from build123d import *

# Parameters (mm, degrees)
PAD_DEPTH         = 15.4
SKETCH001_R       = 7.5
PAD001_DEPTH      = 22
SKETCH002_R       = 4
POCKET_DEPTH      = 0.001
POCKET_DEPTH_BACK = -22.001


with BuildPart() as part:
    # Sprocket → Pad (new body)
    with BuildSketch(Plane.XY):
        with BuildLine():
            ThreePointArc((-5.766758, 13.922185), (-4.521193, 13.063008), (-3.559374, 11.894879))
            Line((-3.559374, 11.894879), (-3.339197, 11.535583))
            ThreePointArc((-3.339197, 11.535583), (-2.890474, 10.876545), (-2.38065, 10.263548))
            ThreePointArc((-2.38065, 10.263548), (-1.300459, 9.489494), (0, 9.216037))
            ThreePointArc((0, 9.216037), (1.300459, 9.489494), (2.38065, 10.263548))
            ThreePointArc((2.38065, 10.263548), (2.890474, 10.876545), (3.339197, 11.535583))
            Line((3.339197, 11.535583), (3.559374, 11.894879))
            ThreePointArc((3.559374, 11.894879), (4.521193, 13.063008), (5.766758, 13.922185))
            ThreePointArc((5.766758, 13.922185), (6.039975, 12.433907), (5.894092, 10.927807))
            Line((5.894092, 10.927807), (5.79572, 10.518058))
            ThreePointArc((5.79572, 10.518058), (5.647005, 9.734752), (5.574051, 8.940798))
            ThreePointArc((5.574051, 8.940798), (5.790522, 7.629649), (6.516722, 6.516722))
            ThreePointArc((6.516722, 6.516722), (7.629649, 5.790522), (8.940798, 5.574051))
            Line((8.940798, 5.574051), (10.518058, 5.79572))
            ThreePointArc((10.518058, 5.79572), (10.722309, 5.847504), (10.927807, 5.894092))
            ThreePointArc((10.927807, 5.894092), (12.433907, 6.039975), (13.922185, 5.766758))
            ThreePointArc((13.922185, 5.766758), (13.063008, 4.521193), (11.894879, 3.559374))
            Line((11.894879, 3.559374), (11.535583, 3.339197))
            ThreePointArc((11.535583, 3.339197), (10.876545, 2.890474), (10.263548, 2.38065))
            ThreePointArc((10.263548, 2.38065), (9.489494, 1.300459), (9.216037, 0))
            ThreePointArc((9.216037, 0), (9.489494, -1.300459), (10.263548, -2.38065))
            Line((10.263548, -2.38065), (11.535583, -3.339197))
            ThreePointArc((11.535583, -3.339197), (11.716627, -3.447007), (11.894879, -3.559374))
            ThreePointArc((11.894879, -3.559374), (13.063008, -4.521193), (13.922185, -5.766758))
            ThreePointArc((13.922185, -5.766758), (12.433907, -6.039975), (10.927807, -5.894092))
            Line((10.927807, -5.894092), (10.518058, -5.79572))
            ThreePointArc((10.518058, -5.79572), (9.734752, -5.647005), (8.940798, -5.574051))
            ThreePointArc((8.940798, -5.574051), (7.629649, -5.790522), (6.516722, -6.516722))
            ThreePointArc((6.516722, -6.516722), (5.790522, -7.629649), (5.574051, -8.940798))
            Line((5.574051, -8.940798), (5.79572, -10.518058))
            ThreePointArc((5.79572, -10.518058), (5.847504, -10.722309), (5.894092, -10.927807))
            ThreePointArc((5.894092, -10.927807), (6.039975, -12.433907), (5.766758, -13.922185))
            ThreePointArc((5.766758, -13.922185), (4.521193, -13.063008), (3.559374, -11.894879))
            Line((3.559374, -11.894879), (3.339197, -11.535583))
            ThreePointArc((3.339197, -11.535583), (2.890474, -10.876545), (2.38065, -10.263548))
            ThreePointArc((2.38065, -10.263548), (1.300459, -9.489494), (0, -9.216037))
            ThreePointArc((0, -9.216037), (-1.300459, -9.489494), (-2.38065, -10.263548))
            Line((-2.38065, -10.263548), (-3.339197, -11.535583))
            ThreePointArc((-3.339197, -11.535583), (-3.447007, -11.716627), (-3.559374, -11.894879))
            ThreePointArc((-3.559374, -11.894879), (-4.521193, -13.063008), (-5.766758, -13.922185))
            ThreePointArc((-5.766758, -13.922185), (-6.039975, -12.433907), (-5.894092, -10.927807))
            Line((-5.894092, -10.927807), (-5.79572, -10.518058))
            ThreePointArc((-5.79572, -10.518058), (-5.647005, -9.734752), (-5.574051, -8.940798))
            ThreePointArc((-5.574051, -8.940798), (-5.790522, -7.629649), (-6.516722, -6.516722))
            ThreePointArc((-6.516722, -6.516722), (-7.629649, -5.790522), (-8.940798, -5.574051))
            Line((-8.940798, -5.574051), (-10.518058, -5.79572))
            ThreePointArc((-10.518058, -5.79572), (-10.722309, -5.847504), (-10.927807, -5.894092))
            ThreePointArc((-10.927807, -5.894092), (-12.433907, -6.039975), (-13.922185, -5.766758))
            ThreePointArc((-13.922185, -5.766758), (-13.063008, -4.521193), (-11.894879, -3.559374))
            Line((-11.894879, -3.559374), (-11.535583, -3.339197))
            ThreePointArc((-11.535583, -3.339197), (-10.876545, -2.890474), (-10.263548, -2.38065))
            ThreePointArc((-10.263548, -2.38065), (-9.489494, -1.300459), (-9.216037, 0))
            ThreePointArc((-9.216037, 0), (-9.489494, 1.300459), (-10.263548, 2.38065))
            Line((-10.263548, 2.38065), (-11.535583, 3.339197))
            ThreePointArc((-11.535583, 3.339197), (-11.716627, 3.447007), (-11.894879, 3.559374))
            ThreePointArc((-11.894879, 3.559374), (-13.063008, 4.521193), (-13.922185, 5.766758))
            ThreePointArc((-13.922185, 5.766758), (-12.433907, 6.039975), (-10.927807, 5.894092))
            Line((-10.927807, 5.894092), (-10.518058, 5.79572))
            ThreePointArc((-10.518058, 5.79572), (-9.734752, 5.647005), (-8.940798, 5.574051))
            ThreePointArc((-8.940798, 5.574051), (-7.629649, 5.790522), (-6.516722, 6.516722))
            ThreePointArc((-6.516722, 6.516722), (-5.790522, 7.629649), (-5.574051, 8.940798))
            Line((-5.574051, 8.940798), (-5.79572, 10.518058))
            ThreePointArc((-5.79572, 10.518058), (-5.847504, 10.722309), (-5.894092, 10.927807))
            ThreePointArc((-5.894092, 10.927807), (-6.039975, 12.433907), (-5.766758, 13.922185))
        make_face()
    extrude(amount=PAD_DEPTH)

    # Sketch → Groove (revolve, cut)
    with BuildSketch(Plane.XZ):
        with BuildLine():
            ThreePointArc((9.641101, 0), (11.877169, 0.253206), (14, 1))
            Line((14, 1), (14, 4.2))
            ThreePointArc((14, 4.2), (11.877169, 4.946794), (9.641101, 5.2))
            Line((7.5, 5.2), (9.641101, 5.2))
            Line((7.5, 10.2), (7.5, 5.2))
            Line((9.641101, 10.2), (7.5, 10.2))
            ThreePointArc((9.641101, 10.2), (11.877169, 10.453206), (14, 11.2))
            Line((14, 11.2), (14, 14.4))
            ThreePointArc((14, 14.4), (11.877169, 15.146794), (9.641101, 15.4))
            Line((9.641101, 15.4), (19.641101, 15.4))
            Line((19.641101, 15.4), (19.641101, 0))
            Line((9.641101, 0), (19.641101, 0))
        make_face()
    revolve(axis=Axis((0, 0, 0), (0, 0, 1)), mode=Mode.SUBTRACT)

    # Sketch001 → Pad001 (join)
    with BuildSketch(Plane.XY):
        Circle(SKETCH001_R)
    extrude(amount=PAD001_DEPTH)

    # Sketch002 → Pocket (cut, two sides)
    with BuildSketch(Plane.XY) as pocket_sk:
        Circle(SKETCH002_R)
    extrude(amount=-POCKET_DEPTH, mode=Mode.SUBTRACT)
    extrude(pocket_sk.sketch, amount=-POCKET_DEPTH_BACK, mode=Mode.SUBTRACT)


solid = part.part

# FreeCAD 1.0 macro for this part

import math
import FreeCAD as App
import Part
import Sketcher
from FreeCAD import Vector
Q = App.Units.Quantity

doc = App.newDocument("Part")
body = doc.addObject("PartDesign::Body", "Body")

# Sketch on XY plane
sketch1 = body.newObject("Sketcher::SketchObject", "Sketch")
sketch1.AttachmentSupport = (doc.getObject("XY_Plane"), [""])
sketch1.MapMode = "FlatFace"
sketch1.addGeometry(Part.ArcOfCircle(Part.Circle(Vector(-8.213287, 9.042958, 0), Vector(0, 0, 1), 5.458237), math.radians(31.499993), math.radians(63.37002)), False)
sketch1.addGeometry(Part.ArcOfCircle(Part.Circle(Vector(-0.586656, 12.202008, 0), Vector(0, 0, 1), 5.458248), math.radians(161.630018), math.radians(193.499983)), False)
sketch1.addGeometry(Part.ArcOfCircle(Part.Circle(Vector(2.232006, 12.662027, 0), Vector(0, 0, 1), 8.309091), math.radians(-167.953026), math.radians(-165.046983)), False)
sketch1.addGeometry(Part.LineSegment(Vector(-5.79572, 10.518058, 0), Vector(-5.574051, 8.940798, 0)), False)
sketch1.addGeometry(Part.ArcOfCircle(Part.Circle(Vector(-8.79995, 8.79995, 0), Vector(0, 0, 1), 3.228972), math.radians(-45.000007), math.radians(2.500031)), False)
sketch1.addGeometry(Part.ArcOfCircle(Part.Circle(Vector(-8.79995, 8.79995, 0), Vector(0, 0, 1), 3.228972), math.radians(-92.500031), math.radians(-44.999993)), False)
sketch1.addGeometry(Part.ArcOfCircle(Part.Circle(Vector(-8.578365, 13.875139, 0), Vector(0, 0, 1), 8.308996), math.radians(-103.499973), math.radians(-92.499996)), False)
sketch1.addGeometry(Part.LineSegment(Vector(-10.518058, 5.79572, 0), Vector(-10.927807, 5.894092, 0)), False)
sketch1.addGeometry(Part.ArcOfCircle(Part.Circle(Vector(-12.202008, 0.586656, 0), Vector(0, 0, 1), 5.458248), math.radians(76.500017), math.radians(108.369982)), False)
sketch1.addGeometry(Part.ArcOfCircle(Part.Circle(Vector(-9.042958, 8.213287, 0), Vector(0, 0, 1), 5.458237), math.radians(-153.37002), math.radians(-121.499993)), False)
sketch1.addGeometry(Part.ArcOfCircle(Part.Circle(Vector(-7.375746, 10.530677, 0), Vector(0, 0, 1), 8.307925), math.radians(-122.953241), math.radians(-120.046788)), False)
sketch1.addGeometry(Part.LineSegment(Vector(-11.535583, 3.339197, 0), Vector(-10.263548, 2.38065, 0)), False)
sketch1.addGeometry(Part.ArcOfCircle(Part.Circle(Vector(-12.445011, 0.000001, 0), Vector(0, 0, 1), 3.228974), math.radians(-0.000009), math.radians(47.500006)), False)
sketch1.addGeometry(Part.ArcOfCircle(Part.Circle(Vector(-12.445011, -0.000001, 0), Vector(0, 0, 1), 3.228974), math.radians(-47.500006), math.radians(0.000009)), False)
sketch1.addGeometry(Part.ArcOfCircle(Part.Circle(Vector(-15.877022, 3.745386, 0), Vector(0, 0, 1), 8.308995), math.radians(-58.499991), math.radians(-47.500016)), False)
sketch1.addGeometry(Part.LineSegment(Vector(-11.535583, -3.339197, 0), Vector(-11.894879, -3.559374, 0)), False)
sketch1.addGeometry(Part.ArcOfCircle(Part.Circle(Vector(-9.042958, -8.213287, 0), Vector(0, 0, 1), 5.458237), math.radians(121.499993), math.radians(153.37002)), False)
sketch1.addGeometry(Part.ArcOfCircle(Part.Circle(Vector(-12.202008, -0.586656, 0), Vector(0, 0, 1), 5.458248), math.radians(-108.369982), math.radians(-76.500017)), False)
sketch1.addGeometry(Part.ArcOfCircle(Part.Circle(Vector(-12.662027, 2.232006, 0), Vector(0, 0, 1), 8.309091), math.radians(-77.953026), math.radians(-75.046983)), False)
sketch1.addGeometry(Part.LineSegment(Vector(-10.518058, -5.79572, 0), Vector(-8.940798, -5.574051, 0)), False)
sketch1.addGeometry(Part.ArcOfCircle(Part.Circle(Vector(-8.79995, -8.79995, 0), Vector(0, 0, 1), 3.228972), math.radians(44.999993), math.radians(92.500031)), False)
sketch1.addGeometry(Part.ArcOfCircle(Part.Circle(Vector(-8.79995, -8.79995, 0), Vector(0, 0, 1), 3.228972), math.radians(-2.500031), math.radians(45.000007)), False)
sketch1.addGeometry(Part.ArcOfCircle(Part.Circle(Vector(-13.875139, -8.578365, 0), Vector(0, 0, 1), 8.308996), math.radians(-13.499973), math.radians(-2.499996)), False)
sketch1.addGeometry(Part.LineSegment(Vector(-5.79572, -10.518058, 0), Vector(-5.894092, -10.927807, 0)), False)
sketch1.addGeometry(Part.ArcOfCircle(Part.Circle(Vector(-0.586656, -12.202008, 0), Vector(0, 0, 1), 5.458248), math.radians(166.500017), math.radians(198.369982)), False)
sketch1.addGeometry(Part.ArcOfCircle(Part.Circle(Vector(-8.213287, -9.042958, 0), Vector(0, 0, 1), 5.458237), math.radians(-63.37002), math.radians(-31.499993)), False)
sketch1.addGeometry(Part.ArcOfCircle(Part.Circle(Vector(-10.530677, -7.375746, 0), Vector(0, 0, 1), 8.307925), math.radians(-32.953241), math.radians(-30.046788)), False)
sketch1.addGeometry(Part.LineSegment(Vector(-3.339197, -11.535583, 0), Vector(-2.38065, -10.263548, 0)), False)
sketch1.addGeometry(Part.ArcOfCircle(Part.Circle(Vector(-0.000001, -12.445011, 0), Vector(0, 0, 1), 3.228974), math.radians(89.999991), math.radians(137.500006)), False)
sketch1.addGeometry(Part.ArcOfCircle(Part.Circle(Vector(0.000001, -12.445011, 0), Vector(0, 0, 1), 3.228974), math.radians(42.499994), math.radians(90.000009)), False)
sketch1.addGeometry(Part.ArcOfCircle(Part.Circle(Vector(-3.745386, -15.877022, 0), Vector(0, 0, 1), 8.308995), math.radians(31.500009), math.radians(42.499984)), False)
sketch1.addGeometry(Part.LineSegment(Vector(3.339197, -11.535583, 0), Vector(3.559374, -11.894879, 0)), False)
sketch1.addGeometry(Part.ArcOfCircle(Part.Circle(Vector(8.213287, -9.042958, 0), Vector(0, 0, 1), 5.458237), math.radians(-148.500007), math.radians(-116.62998)), False)
sketch1.addGeometry(Part.ArcOfCircle(Part.Circle(Vector(0.586656, -12.202008, 0), Vector(0, 0, 1), 5.458248), math.radians(-18.369982), math.radians(13.499983)), False)
sketch1.addGeometry(Part.ArcOfCircle(Part.Circle(Vector(-2.232006, -12.662027, 0), Vector(0, 0, 1), 8.309091), math.radians(12.046974), math.radians(14.953017)), False)
sketch1.addGeometry(Part.LineSegment(Vector(5.79572, -10.518058, 0), Vector(5.574051, -8.940798, 0)), False)
sketch1.addGeometry(Part.ArcOfCircle(Part.Circle(Vector(8.79995, -8.79995, 0), Vector(0, 0, 1), 3.228972), math.radians(134.999993), math.radians(182.500031)), False)
sketch1.addGeometry(Part.ArcOfCircle(Part.Circle(Vector(8.79995, -8.79995, 0), Vector(0, 0, 1), 3.228972), math.radians(87.499969), math.radians(135.000007)), False)
sketch1.addGeometry(Part.ArcOfCircle(Part.Circle(Vector(8.578365, -13.875139, 0), Vector(0, 0, 1), 8.308996), math.radians(76.500027), math.radians(87.500004)), False)
sketch1.addGeometry(Part.LineSegment(Vector(10.518058, -5.79572, 0), Vector(10.927807, -5.894092, 0)), False)
sketch1.addGeometry(Part.ArcOfCircle(Part.Circle(Vector(12.202008, -0.586656, 0), Vector(0, 0, 1), 5.458248), math.radians(-103.499983), math.radians(-71.630018)), False)
sketch1.addGeometry(Part.ArcOfCircle(Part.Circle(Vector(9.042958, -8.213287, 0), Vector(0, 0, 1), 5.458237), math.radians(26.62998), math.radians(58.500007)), False)
sketch1.addGeometry(Part.ArcOfCircle(Part.Circle(Vector(7.375746, -10.530677, 0), Vector(0, 0, 1), 8.307925), math.radians(57.046759), math.radians(59.953212)), False)
sketch1.addGeometry(Part.LineSegment(Vector(11.535583, -3.339197, 0), Vector(10.263548, -2.38065, 0)), False)
sketch1.addGeometry(Part.ArcOfCircle(Part.Circle(Vector(12.445011, -0.000001, 0), Vector(0, 0, 1), 3.228974), math.radians(179.999991), math.radians(227.500006)), False)
sketch1.addGeometry(Part.ArcOfCircle(Part.Circle(Vector(12.445011, 0.000001, 0), Vector(0, 0, 1), 3.228974), math.radians(132.499994), math.radians(180.000009)), False)
sketch1.addGeometry(Part.ArcOfCircle(Part.Circle(Vector(15.877022, -3.745386, 0), Vector(0, 0, 1), 8.308995), math.radians(121.500009), math.radians(132.499984)), False)
sketch1.addGeometry(Part.LineSegment(Vector(11.535583, 3.339197, 0), Vector(11.894879, 3.559374, 0)), False)
sketch1.addGeometry(Part.ArcOfCircle(Part.Circle(Vector(9.042958, 8.213287, 0), Vector(0, 0, 1), 5.458237), math.radians(-58.500007), math.radians(-26.62998)), False)
sketch1.addGeometry(Part.ArcOfCircle(Part.Circle(Vector(12.202008, 0.586656, 0), Vector(0, 0, 1), 5.458248), math.radians(71.630018), math.radians(103.499983)), False)
sketch1.addGeometry(Part.ArcOfCircle(Part.Circle(Vector(12.662027, -2.232006, 0), Vector(0, 0, 1), 8.309091), math.radians(102.046974), math.radians(104.953017)), False)
sketch1.addGeometry(Part.LineSegment(Vector(10.518058, 5.79572, 0), Vector(8.940798, 5.574051, 0)), False)
sketch1.addGeometry(Part.ArcOfCircle(Part.Circle(Vector(8.79995, 8.79995, 0), Vector(0, 0, 1), 3.228972), math.radians(-135.000007), math.radians(-87.499969)), False)
sketch1.addGeometry(Part.ArcOfCircle(Part.Circle(Vector(8.79995, 8.79995, 0), Vector(0, 0, 1), 3.228972), math.radians(177.499969), math.radians(225.000007)), False)
sketch1.addGeometry(Part.ArcOfCircle(Part.Circle(Vector(13.875139, 8.578365, 0), Vector(0, 0, 1), 8.308996), math.radians(166.500027), math.radians(177.500004)), False)
sketch1.addGeometry(Part.LineSegment(Vector(5.79572, 10.518058, 0), Vector(5.894092, 10.927807, 0)), False)
sketch1.addGeometry(Part.ArcOfCircle(Part.Circle(Vector(0.586656, 12.202008, 0), Vector(0, 0, 1), 5.458248), math.radians(-13.499983), math.radians(18.369982)), False)
sketch1.addGeometry(Part.ArcOfCircle(Part.Circle(Vector(8.213287, 9.042958, 0), Vector(0, 0, 1), 5.458237), math.radians(116.62998), math.radians(148.500007)), False)
sketch1.addGeometry(Part.LineSegment(Vector(3.559374, 11.894879, 0), Vector(3.339197, 11.535583, 0)), False)
sketch1.addGeometry(Part.ArcOfCircle(Part.Circle(Vector(-3.745386, 15.877022, 0), Vector(0, 0, 1), 8.308995), math.radians(-42.499984), math.radians(-31.500009)), False)
sketch1.addGeometry(Part.ArcOfCircle(Part.Circle(Vector(0.000001, 12.445011, 0), Vector(0, 0, 1), 3.228974), math.radians(-90.000009), math.radians(-42.499994)), False)
sketch1.addGeometry(Part.ArcOfCircle(Part.Circle(Vector(-0.000001, 12.445011, 0), Vector(0, 0, 1), 3.228974), math.radians(-137.500006), math.radians(-89.999991)), False)
sketch1.addGeometry(Part.ArcOfCircle(Part.Circle(Vector(3.745386, 15.877022, 0), Vector(0, 0, 1), 8.308995), math.radians(-148.499991), math.radians(-137.500016)), False)
sketch1.addGeometry(Part.LineSegment(Vector(-3.339197, 11.535583, 0), Vector(-3.559374, 11.894879, 0)), False)
sketch1.addConstraint(Sketcher.Constraint("Coincident", 0, 2, 1, 1))
sketch1.addConstraint(Sketcher.Constraint("Coincident", 1, 2, 2, 1))
sketch1.addConstraint(Sketcher.Constraint("Coincident", 2, 2, 3, 1))
sketch1.addConstraint(Sketcher.Constraint("Coincident", 3, 2, 4, 2))
sketch1.addConstraint(Sketcher.Constraint("Tangent", 4, 1, 5, 2))
sketch1.addConstraint(Sketcher.Constraint("Tangent", 5, 1, 6, 2))
sketch1.addConstraint(Sketcher.Constraint("Tangent", 6, 1, 7, 1))
sketch1.addConstraint(Sketcher.Constraint("Tangent", 7, 2, 8, 1))
sketch1.addConstraint(Sketcher.Constraint("Coincident", 8, 2, 9, 1))
sketch1.addConstraint(Sketcher.Constraint("Coincident", 9, 2, 10, 1))
sketch1.addConstraint(Sketcher.Constraint("Coincident", 10, 2, 11, 1))
sketch1.addConstraint(Sketcher.Constraint("Coincident", 11, 2, 12, 2))
sketch1.addConstraint(Sketcher.Constraint("Tangent", 12, 1, 13, 2))
sketch1.addConstraint(Sketcher.Constraint("Tangent", 13, 1, 14, 2))
sketch1.addConstraint(Sketcher.Constraint("Tangent", 14, 1, 15, 1))
sketch1.addConstraint(Sketcher.Constraint("Tangent", 15, 2, 16, 1))
sketch1.addConstraint(Sketcher.Constraint("Coincident", 16, 2, 17, 1))
sketch1.addConstraint(Sketcher.Constraint("Coincident", 17, 2, 18, 1))
sketch1.addConstraint(Sketcher.Constraint("Coincident", 18, 2, 19, 1))
sketch1.addConstraint(Sketcher.Constraint("Coincident", 19, 2, 20, 2))
sketch1.addConstraint(Sketcher.Constraint("Tangent", 20, 1, 21, 2))
sketch1.addConstraint(Sketcher.Constraint("Tangent", 21, 1, 22, 2))
sketch1.addConstraint(Sketcher.Constraint("Tangent", 22, 1, 23, 1))
sketch1.addConstraint(Sketcher.Constraint("Tangent", 23, 2, 24, 1))
sketch1.addConstraint(Sketcher.Constraint("Coincident", 24, 2, 25, 1))
sketch1.addConstraint(Sketcher.Constraint("Coincident", 25, 2, 26, 1))
sketch1.addConstraint(Sketcher.Constraint("Coincident", 26, 2, 27, 1))
sketch1.addConstraint(Sketcher.Constraint("Coincident", 27, 2, 28, 2))
sketch1.addConstraint(Sketcher.Constraint("Tangent", 28, 1, 29, 2))
sketch1.addConstraint(Sketcher.Constraint("Tangent", 29, 1, 30, 2))
sketch1.addConstraint(Sketcher.Constraint("Tangent", 30, 1, 31, 1))
sketch1.addConstraint(Sketcher.Constraint("Tangent", 31, 2, 32, 1))
sketch1.addConstraint(Sketcher.Constraint("Coincident", 32, 2, 33, 1))
sketch1.addConstraint(Sketcher.Constraint("Coincident", 33, 2, 34, 1))
sketch1.addConstraint(Sketcher.Constraint("Coincident", 34, 2, 35, 1))
sketch1.addConstraint(Sketcher.Constraint("Coincident", 35, 2, 36, 2))
sketch1.addConstraint(Sketcher.Constraint("Tangent", 36, 1, 37, 2))
sketch1.addConstraint(Sketcher.Constraint("Tangent", 37, 1, 38, 2))
sketch1.addConstraint(Sketcher.Constraint("Tangent", 38, 1, 39, 1))
sketch1.addConstraint(Sketcher.Constraint("Tangent", 39, 2, 40, 1))
sketch1.addConstraint(Sketcher.Constraint("Coincident", 40, 2, 41, 1))
sketch1.addConstraint(Sketcher.Constraint("Coincident", 41, 2, 42, 1))
sketch1.addConstraint(Sketcher.Constraint("Coincident", 42, 2, 43, 1))
sketch1.addConstraint(Sketcher.Constraint("Coincident", 43, 2, 44, 2))
sketch1.addConstraint(Sketcher.Constraint("Tangent", 44, 1, 45, 2))
sketch1.addConstraint(Sketcher.Constraint("Tangent", 45, 1, 46, 2))
sketch1.addConstraint(Sketcher.Constraint("Tangent", 46, 1, 47, 1))
sketch1.addConstraint(Sketcher.Constraint("Tangent", 47, 2, 48, 1))
sketch1.addConstraint(Sketcher.Constraint("Coincident", 48, 2, 49, 1))
sketch1.addConstraint(Sketcher.Constraint("Coincident", 49, 2, 50, 1))
sketch1.addConstraint(Sketcher.Constraint("Coincident", 50, 2, 51, 1))
sketch1.addConstraint(Sketcher.Constraint("Coincident", 51, 2, 52, 2))
sketch1.addConstraint(Sketcher.Constraint("Tangent", 52, 1, 53, 2))
sketch1.addConstraint(Sketcher.Constraint("Tangent", 53, 1, 54, 2))
sketch1.addConstraint(Sketcher.Constraint("Tangent", 54, 1, 55, 1))
sketch1.addConstraint(Sketcher.Constraint("Tangent", 55, 2, 56, 1))
sketch1.addConstraint(Sketcher.Constraint("Coincident", 56, 2, 57, 1))
sketch1.addConstraint(Sketcher.Constraint("Tangent", 57, 2, 58, 1))
sketch1.addConstraint(Sketcher.Constraint("Tangent", 58, 2, 59, 2))
sketch1.addConstraint(Sketcher.Constraint("Tangent", 59, 1, 60, 2))
sketch1.addConstraint(Sketcher.Constraint("Tangent", 60, 1, 61, 2))
sketch1.addConstraint(Sketcher.Constraint("Tangent", 61, 1, 62, 2))
sketch1.addConstraint(Sketcher.Constraint("Tangent", 62, 1, 63, 1))
sketch1.addConstraint(Sketcher.Constraint("Tangent", 63, 2, 0, 1))
sketch1.addConstraint(Sketcher.Constraint("Equal", 4, 5))
sketch1.addConstraint(Sketcher.Constraint("Equal", 1, 8))
sketch1.addConstraint(Sketcher.Constraint("Equal", 0, 9))
sketch1.addConstraint(Sketcher.Constraint("Equal", 5, 12))
sketch1.addConstraint(Sketcher.Constraint("Equal", 12, 13))
sketch1.addConstraint(Sketcher.Constraint("Equal", 6, 14))
sketch1.addConstraint(Sketcher.Constraint("Equal", 9, 16))
sketch1.addConstraint(Sketcher.Constraint("Equal", 8, 17))
sketch1.addConstraint(Sketcher.Constraint("Equal", 2, 18))
sketch1.addConstraint(Sketcher.Constraint("Equal", 13, 20))
sketch1.addConstraint(Sketcher.Constraint("Equal", 20, 21))
sketch1.addConstraint(Sketcher.Constraint("Equal", 14, 22))
sketch1.addConstraint(Sketcher.Constraint("Equal", 17, 24))
sketch1.addConstraint(Sketcher.Constraint("Equal", 16, 25))
sketch1.addConstraint(Sketcher.Constraint("Equal", 10, 26))
sketch1.addConstraint(Sketcher.Constraint("Equal", 21, 28))
sketch1.addConstraint(Sketcher.Constraint("Equal", 28, 29))
sketch1.addConstraint(Sketcher.Constraint("Equal", 22, 30))
sketch1.addConstraint(Sketcher.Constraint("Equal", 25, 32))
sketch1.addConstraint(Sketcher.Constraint("Equal", 24, 33))
sketch1.addConstraint(Sketcher.Constraint("Equal", 18, 34))
sketch1.addConstraint(Sketcher.Constraint("Equal", 29, 36))
sketch1.addConstraint(Sketcher.Constraint("Equal", 36, 37))
sketch1.addConstraint(Sketcher.Constraint("Equal", 30, 38))
sketch1.addConstraint(Sketcher.Constraint("Equal", 33, 40))
sketch1.addConstraint(Sketcher.Constraint("Equal", 32, 41))
sketch1.addConstraint(Sketcher.Constraint("Equal", 26, 42))
sketch1.addConstraint(Sketcher.Constraint("Equal", 37, 44))
sketch1.addConstraint(Sketcher.Constraint("Equal", 44, 45))
sketch1.addConstraint(Sketcher.Constraint("Equal", 38, 46))
sketch1.addConstraint(Sketcher.Constraint("Equal", 41, 48))
sketch1.addConstraint(Sketcher.Constraint("Equal", 40, 49))
sketch1.addConstraint(Sketcher.Constraint("Equal", 34, 50))
sketch1.addConstraint(Sketcher.Constraint("Equal", 45, 52))
sketch1.addConstraint(Sketcher.Constraint("Equal", 52, 53))
sketch1.addConstraint(Sketcher.Constraint("Equal", 46, 54))
sketch1.addConstraint(Sketcher.Constraint("Equal", 49, 56))
sketch1.addConstraint(Sketcher.Constraint("Equal", 48, 57))
sketch1.addConstraint(Sketcher.Constraint("Equal", 54, 59))
sketch1.addConstraint(Sketcher.Constraint("Equal", 53, 60))
sketch1.addConstraint(Sketcher.Constraint("Equal", 60, 61))
sketch1.addConstraint(Sketcher.Constraint("Equal", 59, 62))
sketch1.addConstraint(Sketcher.Constraint("Symmetric", 0, 3, 32, 3, -1, 1))
sketch1.addConstraint(Sketcher.Constraint("Symmetric", 1, 3, 33, 3, -1, 1))
sketch1.addConstraint(Sketcher.Constraint("Symmetric", 2, 3, 34, 3, -1, 1))
sketch1.addConstraint(Sketcher.Constraint("Symmetric", 4, 3, 36, 3, -1, 1))
sketch1.addConstraint(Sketcher.Constraint("Symmetric", 8, 3, 40, 3, -1, 1))
sketch1.addConstraint(Sketcher.Constraint("Symmetric", 9, 3, 41, 3, -1, 1))
sketch1.addConstraint(Sketcher.Constraint("Symmetric", 10, 3, 42, 3, -1, 1))
sketch1.addConstraint(Sketcher.Constraint("Symmetric", 12, 3, 44, 3, -1, 1))
sketch1.addConstraint(Sketcher.Constraint("Symmetric", 16, 3, 48, 3, -1, 1))
sketch1.addConstraint(Sketcher.Constraint("Symmetric", 17, 3, 49, 3, -1, 1))
sketch1.addConstraint(Sketcher.Constraint("Symmetric", 18, 3, 50, 3, -1, 1))
sketch1.addConstraint(Sketcher.Constraint("Symmetric", 20, 3, 52, 3, -1, 1))
sketch1.addConstraint(Sketcher.Constraint("Symmetric", 24, 3, 56, 3, -1, 1))
sketch1.addConstraint(Sketcher.Constraint("Symmetric", 25, 3, 57, 3, -1, 1))
sketch1.addConstraint(Sketcher.Constraint("Symmetric", 28, 3, 60, 3, -1, 1))
sketch1.addConstraint(Sketcher.Constraint("Symmetric", 26, 2, 58, 2, -1, 1))
sketch1.addConstraint(Sketcher.Constraint("Symmetric", 25, 3, 32, 3, -2))
sketch1.addConstraint(Sketcher.Constraint("Symmetric", 24, 3, 33, 3, -2))
sketch1.addConstraint(Sketcher.Constraint("Symmetric", 20, 3, 36, 3, -2))
sketch1.addConstraint(Sketcher.Constraint("Symmetric", 17, 3, 40, 3, -2))
sketch1.addConstraint(Sketcher.Constraint("Symmetric", 16, 3, 41, 3, -2))
sketch1.addConstraint(Sketcher.Constraint("Symmetric", 59, 3, 62, 3, -2))
sketch1.addConstraint(Sketcher.Constraint("Symmetric", 22, 1, 34, 2, -2))
sketch1.addConstraint(Sketcher.Constraint("Symmetric", 18, 2, 38, 1, -2))
sketch1.addConstraint(Sketcher.Constraint("Symmetric", 14, 1, 42, 2, -2))
sketch1.addConstraint(Sketcher.Constraint("Symmetric", 13, 1, 43, 2, -2))
sketch1.addConstraint(Sketcher.Constraint("Symmetric", 10, 2, 46, 1, -2))
sketch1.addConstraint(Sketcher.Constraint("Symmetric", 6, 1, 50, 2, -2))
sketch1.addConstraint(Sketcher.Constraint("Symmetric", 2, 2, 54, 1, -2))
sketch1.addConstraint(Sketcher.Constraint("PointOnObject", 12, 1, -1))
sketch1.addConstraint(Sketcher.Constraint("PointOnObject", 28, 1, -2))
sketch1.addConstraint(Sketcher.Constraint("PointOnObject", 44, 1, -1))
sketch1.addConstraint(Sketcher.Constraint("PointOnObject", 60, 1, -2))
sketch1.addConstraint(Sketcher.Constraint("Perpendicular", 3, 19))
sketch1.addConstraint(Sketcher.Constraint("Perpendicular", 7, 23))
sketch1.addConstraint(Sketcher.Constraint("Perpendicular", 11, 27))
sketch1.addConstraint(Sketcher.Constraint("Perpendicular", 15, 31))
sketch1.addConstraint(Sketcher.Constraint("Perpendicular", 19, 35))
sketch1.addConstraint(Sketcher.Constraint("Perpendicular", 27, 43))
sketch1.addConstraint(Sketcher.Constraint("Perpendicular", 35, 51))
sketch1.addConstraint(Sketcher.Constraint("Perpendicular", 47, 63))
sketch1.addConstraint(Sketcher.Constraint("Horizontal", 27, 2, 29, 1))
sketch1.addConstraint(Sketcher.Constraint("Horizontal", 25, 2, 31, 2))
sketch1.addConstraint(Sketcher.Constraint("Horizontal", 23, 2, 33, 2))
sketch1.addConstraint(Sketcher.Constraint("Horizontal", 21, 1, 35, 2))
sketch1.addConstraint(Sketcher.Constraint("Horizontal", 20, 1, 36, 1))
sketch1.addConstraint(Sketcher.Constraint("Horizontal", 19, 2, 37, 1))
sketch1.addConstraint(Sketcher.Constraint("Horizontal", 17, 2, 39, 2))
sketch1.addConstraint(Sketcher.Constraint("Horizontal", 15, 2, 41, 2))
sketch1.addConstraint(Sketcher.Constraint("Horizontal", 4, 1, 52, 1))
sketch1.addConstraint(Sketcher.Constraint("Vertical", 4, 1, 20, 1))
sketch1.addConstraint(Sketcher.Constraint("Equal", 3, 11))
sketch1.addConstraint(Sketcher.Constraint("Equal", 7, 15))
sketch1.addConstraint(Sketcher.Constraint("Equal", 15, 23))
sketch1.addConstraint(Sketcher.Constraint("Equal", 23, 31))
sketch1.addConstraint(Sketcher.Constraint("Angle", 3, Q("-82.000016 deg")))
sketch1.addConstraint(Sketcher.Constraint("Angle", 11, Q("-36.999996 deg")))
sketch1.addConstraint(Sketcher.Constraint("Angle", 7, Q("166.500004 deg")))
sketch1.addConstraint(Sketcher.Constraint("Radius", 2, 8.309091))
sketch1.addConstraint(Sketcher.Constraint("Radius", 0, 5.458237))
sketch1.addConstraint(Sketcher.Constraint("Radius", 1, 5.458248))
sketch1.addConstraint(Sketcher.Constraint("Radius", 4, 3.228972))
sketch1.addConstraint(Sketcher.Constraint("Radius", 6, 8.308996))
sketch1.addConstraint(Sketcher.Constraint("Radius", 10, 8.307925))
sketch1.addConstraint(Sketcher.Constraint("DistanceY", -1, 1, 0, 3, 9.042958))
sketch1.addConstraint(Sketcher.Constraint("DistanceY", -1, 1, 1, 3, 12.202008))
sketch1.addConstraint(Sketcher.Constraint("DistanceX", 4, 3, -1, 1, 8.79995))
sketch1.addConstraint(Sketcher.Constraint("DistanceY", -1, 1, 4, 3, 8.79995))
sketch1.addConstraint(Sketcher.Constraint("DistanceX", 9, 3, -1, 1, 9.042958))
sketch1.addConstraint(Sketcher.Constraint("DistanceX", 4, 1, -1, 1, 6.516722))
pad1 = body.newObject("PartDesign::Pad", "Pad")
pad1.Profile = sketch1
pad1.Length = 15.4

# Sketch on XZ plane
sketch2 = body.newObject("Sketcher::SketchObject", "Sketch001")
sketch2.AttachmentSupport = (doc.getObject("XZ_Plane"), [""])
sketch2.MapMode = "FlatFace"
sketch2.addGeometry(Part.ArcOfCircle(Part.Circle(Vector(9.641098, 10.000013, 0), Vector(0, 0, 1), 10.000013), math.radians(-89.999983), math.radians(-64.158085)), False)
sketch2.addGeometry(Part.LineSegment(Vector(9.641101, 0, 0), Vector(19.641101, 0, 0)), False)
sketch2.addGeometry(Part.LineSegment(Vector(19.641101, 0, 0), Vector(19.641101, 15.4, 0)), False)
sketch2.addGeometry(Part.LineSegment(Vector(19.641101, 15.4, 0), Vector(9.641101, 15.4, 0)), False)
sketch2.addGeometry(Part.ArcOfCircle(Part.Circle(Vector(9.641098, 5.399987, 0), Vector(0, 0, 1), 10.000013), math.radians(64.158085), math.radians(89.999983)), False)
sketch2.addGeometry(Part.LineSegment(Vector(14, 14.4, 0), Vector(14, 11.2, 0)), False)
sketch2.addGeometry(Part.ArcOfCircle(Part.Circle(Vector(9.641098, 20.200013, 0), Vector(0, 0, 1), 10.000013), math.radians(-89.999983), math.radians(-64.158085)), False)
sketch2.addGeometry(Part.LineSegment(Vector(9.641101, 10.2, 0), Vector(7.5, 10.2, 0)), False)
sketch2.addGeometry(Part.LineSegment(Vector(7.5, 10.2, 0), Vector(7.5, 5.2, 0)), False)
sketch2.addGeometry(Part.LineSegment(Vector(7.5, 5.2, 0), Vector(9.641101, 5.2, 0)), False)
sketch2.addGeometry(Part.ArcOfCircle(Part.Circle(Vector(9.641098, -4.800013, 0), Vector(0, 0, 1), 10.000013), math.radians(64.158085), math.radians(89.999983)), False)
sketch2.addGeometry(Part.LineSegment(Vector(14, 4.2, 0), Vector(14, 1, 0)), False)
sketch2.addConstraint(Sketcher.Constraint("Tangent", 0, 1, 1, 1))
sketch2.addConstraint(Sketcher.Constraint("Coincident", 1, 2, 2, 1))
sketch2.addConstraint(Sketcher.Constraint("Coincident", 2, 2, 3, 1))
sketch2.addConstraint(Sketcher.Constraint("Tangent", 3, 2, 4, 2))
sketch2.addConstraint(Sketcher.Constraint("Coincident", 4, 1, 5, 1))
sketch2.addConstraint(Sketcher.Constraint("Coincident", 5, 2, 6, 2))
sketch2.addConstraint(Sketcher.Constraint("Tangent", 6, 1, 7, 1))
sketch2.addConstraint(Sketcher.Constraint("Coincident", 7, 2, 8, 1))
sketch2.addConstraint(Sketcher.Constraint("Coincident", 8, 2, 9, 1))
sketch2.addConstraint(Sketcher.Constraint("Tangent", 9, 2, 10, 2))
sketch2.addConstraint(Sketcher.Constraint("Coincident", 10, 1, 11, 1))
sketch2.addConstraint(Sketcher.Constraint("Coincident", 11, 2, 0, 2))
sketch2.addConstraint(Sketcher.Constraint("Horizontal", 1))
sketch2.addConstraint(Sketcher.Constraint("Vertical", 2))
sketch2.addConstraint(Sketcher.Constraint("Horizontal", 3))
sketch2.addConstraint(Sketcher.Constraint("Vertical", 5))
sketch2.addConstraint(Sketcher.Constraint("Horizontal", 7))
sketch2.addConstraint(Sketcher.Constraint("Vertical", 8))
sketch2.addConstraint(Sketcher.Constraint("Horizontal", 9))
sketch2.addConstraint(Sketcher.Constraint("Vertical", 11))
sketch2.addConstraint(Sketcher.Constraint("Equal", 0, 4))
sketch2.addConstraint(Sketcher.Constraint("Equal", 4, 6))
sketch2.addConstraint(Sketcher.Constraint("Equal", 6, 10))
sketch2.addConstraint(Sketcher.Constraint("PointOnObject", 0, 1, -1))
sketch2.addConstraint(Sketcher.Constraint("Vertical", 0, 3, 4, 3))
sketch2.addConstraint(Sketcher.Constraint("Vertical", 4, 3, 6, 3))
sketch2.addConstraint(Sketcher.Constraint("Vertical", 6, 3, 10, 3))
sketch2.addConstraint(Sketcher.Constraint("Vertical", 5, 2, 10, 1))
sketch2.addConstraint(Sketcher.Constraint("Equal", 5, 11))
sketch2.addConstraint(Sketcher.Constraint("DistanceX", 1, 1, 1, 2, 10.0))
sketch2.addConstraint(Sketcher.Constraint("DistanceY", 8, 2, 8, 1, 5.0))
sketch2.addConstraint(Sketcher.Constraint("DistanceY", 2, 1, 2, 2, 15.4))
sketch2.addConstraint(Sketcher.Constraint("DistanceY", 5, 2, 5, 1, 3.2))
sketch2.addConstraint(Sketcher.Constraint("DistanceX", -1, 1, 4, 1, 14.0))
sketch2.addConstraint(Sketcher.Constraint("DistanceX", -1, 1, 7, 2, 7.5))
sketch2.addConstraint(Sketcher.Constraint("DistanceX", 7, 2, 7, 1, 2.141101))
groove = body.newObject("PartDesign::Groove", "Groove")
groove.Profile = sketch2
groove.ReferenceAxis = (sketch2, ["V_Axis"])
groove.Angle = 360

# Sketch on XY plane
sketch3 = body.newObject("Sketcher::SketchObject", "Sketch002")
sketch3.AttachmentSupport = (doc.getObject("XY_Plane"), [""])
sketch3.MapMode = "FlatFace"
sketch3.addGeometry(Part.Circle(Vector(0, 0, 0), Vector(0, 0, 1), 7.5), False)
sketch3.addConstraint(Sketcher.Constraint("Coincident", 0, 3, -1, 1))
sketch3.addConstraint(Sketcher.Constraint("Diameter", 0, 15.0))
pad2 = body.newObject("PartDesign::Pad", "Pad001")
pad2.Profile = sketch3
pad2.Length = 22

# Sketch on XY plane
sketch4 = body.newObject("Sketcher::SketchObject", "Sketch003")
sketch4.AttachmentSupport = (doc.getObject("XY_Plane"), [""])
sketch4.MapMode = "FlatFace"
sketch4.addGeometry(Part.Circle(Vector(0, 0, 0), Vector(0, 0, 1), 4), False)
sketch4.addConstraint(Sketcher.Constraint("Coincident", 0, 3, -1, 1))
sketch4.addConstraint(Sketcher.Constraint("Diameter", 0, 8.0))
pocket1 = body.newObject("PartDesign::Pocket", "Pocket")
pocket1.Profile = sketch4
pocket1.Type = "ThroughAll"
pocket1.Midplane = True

doc.recompute()
